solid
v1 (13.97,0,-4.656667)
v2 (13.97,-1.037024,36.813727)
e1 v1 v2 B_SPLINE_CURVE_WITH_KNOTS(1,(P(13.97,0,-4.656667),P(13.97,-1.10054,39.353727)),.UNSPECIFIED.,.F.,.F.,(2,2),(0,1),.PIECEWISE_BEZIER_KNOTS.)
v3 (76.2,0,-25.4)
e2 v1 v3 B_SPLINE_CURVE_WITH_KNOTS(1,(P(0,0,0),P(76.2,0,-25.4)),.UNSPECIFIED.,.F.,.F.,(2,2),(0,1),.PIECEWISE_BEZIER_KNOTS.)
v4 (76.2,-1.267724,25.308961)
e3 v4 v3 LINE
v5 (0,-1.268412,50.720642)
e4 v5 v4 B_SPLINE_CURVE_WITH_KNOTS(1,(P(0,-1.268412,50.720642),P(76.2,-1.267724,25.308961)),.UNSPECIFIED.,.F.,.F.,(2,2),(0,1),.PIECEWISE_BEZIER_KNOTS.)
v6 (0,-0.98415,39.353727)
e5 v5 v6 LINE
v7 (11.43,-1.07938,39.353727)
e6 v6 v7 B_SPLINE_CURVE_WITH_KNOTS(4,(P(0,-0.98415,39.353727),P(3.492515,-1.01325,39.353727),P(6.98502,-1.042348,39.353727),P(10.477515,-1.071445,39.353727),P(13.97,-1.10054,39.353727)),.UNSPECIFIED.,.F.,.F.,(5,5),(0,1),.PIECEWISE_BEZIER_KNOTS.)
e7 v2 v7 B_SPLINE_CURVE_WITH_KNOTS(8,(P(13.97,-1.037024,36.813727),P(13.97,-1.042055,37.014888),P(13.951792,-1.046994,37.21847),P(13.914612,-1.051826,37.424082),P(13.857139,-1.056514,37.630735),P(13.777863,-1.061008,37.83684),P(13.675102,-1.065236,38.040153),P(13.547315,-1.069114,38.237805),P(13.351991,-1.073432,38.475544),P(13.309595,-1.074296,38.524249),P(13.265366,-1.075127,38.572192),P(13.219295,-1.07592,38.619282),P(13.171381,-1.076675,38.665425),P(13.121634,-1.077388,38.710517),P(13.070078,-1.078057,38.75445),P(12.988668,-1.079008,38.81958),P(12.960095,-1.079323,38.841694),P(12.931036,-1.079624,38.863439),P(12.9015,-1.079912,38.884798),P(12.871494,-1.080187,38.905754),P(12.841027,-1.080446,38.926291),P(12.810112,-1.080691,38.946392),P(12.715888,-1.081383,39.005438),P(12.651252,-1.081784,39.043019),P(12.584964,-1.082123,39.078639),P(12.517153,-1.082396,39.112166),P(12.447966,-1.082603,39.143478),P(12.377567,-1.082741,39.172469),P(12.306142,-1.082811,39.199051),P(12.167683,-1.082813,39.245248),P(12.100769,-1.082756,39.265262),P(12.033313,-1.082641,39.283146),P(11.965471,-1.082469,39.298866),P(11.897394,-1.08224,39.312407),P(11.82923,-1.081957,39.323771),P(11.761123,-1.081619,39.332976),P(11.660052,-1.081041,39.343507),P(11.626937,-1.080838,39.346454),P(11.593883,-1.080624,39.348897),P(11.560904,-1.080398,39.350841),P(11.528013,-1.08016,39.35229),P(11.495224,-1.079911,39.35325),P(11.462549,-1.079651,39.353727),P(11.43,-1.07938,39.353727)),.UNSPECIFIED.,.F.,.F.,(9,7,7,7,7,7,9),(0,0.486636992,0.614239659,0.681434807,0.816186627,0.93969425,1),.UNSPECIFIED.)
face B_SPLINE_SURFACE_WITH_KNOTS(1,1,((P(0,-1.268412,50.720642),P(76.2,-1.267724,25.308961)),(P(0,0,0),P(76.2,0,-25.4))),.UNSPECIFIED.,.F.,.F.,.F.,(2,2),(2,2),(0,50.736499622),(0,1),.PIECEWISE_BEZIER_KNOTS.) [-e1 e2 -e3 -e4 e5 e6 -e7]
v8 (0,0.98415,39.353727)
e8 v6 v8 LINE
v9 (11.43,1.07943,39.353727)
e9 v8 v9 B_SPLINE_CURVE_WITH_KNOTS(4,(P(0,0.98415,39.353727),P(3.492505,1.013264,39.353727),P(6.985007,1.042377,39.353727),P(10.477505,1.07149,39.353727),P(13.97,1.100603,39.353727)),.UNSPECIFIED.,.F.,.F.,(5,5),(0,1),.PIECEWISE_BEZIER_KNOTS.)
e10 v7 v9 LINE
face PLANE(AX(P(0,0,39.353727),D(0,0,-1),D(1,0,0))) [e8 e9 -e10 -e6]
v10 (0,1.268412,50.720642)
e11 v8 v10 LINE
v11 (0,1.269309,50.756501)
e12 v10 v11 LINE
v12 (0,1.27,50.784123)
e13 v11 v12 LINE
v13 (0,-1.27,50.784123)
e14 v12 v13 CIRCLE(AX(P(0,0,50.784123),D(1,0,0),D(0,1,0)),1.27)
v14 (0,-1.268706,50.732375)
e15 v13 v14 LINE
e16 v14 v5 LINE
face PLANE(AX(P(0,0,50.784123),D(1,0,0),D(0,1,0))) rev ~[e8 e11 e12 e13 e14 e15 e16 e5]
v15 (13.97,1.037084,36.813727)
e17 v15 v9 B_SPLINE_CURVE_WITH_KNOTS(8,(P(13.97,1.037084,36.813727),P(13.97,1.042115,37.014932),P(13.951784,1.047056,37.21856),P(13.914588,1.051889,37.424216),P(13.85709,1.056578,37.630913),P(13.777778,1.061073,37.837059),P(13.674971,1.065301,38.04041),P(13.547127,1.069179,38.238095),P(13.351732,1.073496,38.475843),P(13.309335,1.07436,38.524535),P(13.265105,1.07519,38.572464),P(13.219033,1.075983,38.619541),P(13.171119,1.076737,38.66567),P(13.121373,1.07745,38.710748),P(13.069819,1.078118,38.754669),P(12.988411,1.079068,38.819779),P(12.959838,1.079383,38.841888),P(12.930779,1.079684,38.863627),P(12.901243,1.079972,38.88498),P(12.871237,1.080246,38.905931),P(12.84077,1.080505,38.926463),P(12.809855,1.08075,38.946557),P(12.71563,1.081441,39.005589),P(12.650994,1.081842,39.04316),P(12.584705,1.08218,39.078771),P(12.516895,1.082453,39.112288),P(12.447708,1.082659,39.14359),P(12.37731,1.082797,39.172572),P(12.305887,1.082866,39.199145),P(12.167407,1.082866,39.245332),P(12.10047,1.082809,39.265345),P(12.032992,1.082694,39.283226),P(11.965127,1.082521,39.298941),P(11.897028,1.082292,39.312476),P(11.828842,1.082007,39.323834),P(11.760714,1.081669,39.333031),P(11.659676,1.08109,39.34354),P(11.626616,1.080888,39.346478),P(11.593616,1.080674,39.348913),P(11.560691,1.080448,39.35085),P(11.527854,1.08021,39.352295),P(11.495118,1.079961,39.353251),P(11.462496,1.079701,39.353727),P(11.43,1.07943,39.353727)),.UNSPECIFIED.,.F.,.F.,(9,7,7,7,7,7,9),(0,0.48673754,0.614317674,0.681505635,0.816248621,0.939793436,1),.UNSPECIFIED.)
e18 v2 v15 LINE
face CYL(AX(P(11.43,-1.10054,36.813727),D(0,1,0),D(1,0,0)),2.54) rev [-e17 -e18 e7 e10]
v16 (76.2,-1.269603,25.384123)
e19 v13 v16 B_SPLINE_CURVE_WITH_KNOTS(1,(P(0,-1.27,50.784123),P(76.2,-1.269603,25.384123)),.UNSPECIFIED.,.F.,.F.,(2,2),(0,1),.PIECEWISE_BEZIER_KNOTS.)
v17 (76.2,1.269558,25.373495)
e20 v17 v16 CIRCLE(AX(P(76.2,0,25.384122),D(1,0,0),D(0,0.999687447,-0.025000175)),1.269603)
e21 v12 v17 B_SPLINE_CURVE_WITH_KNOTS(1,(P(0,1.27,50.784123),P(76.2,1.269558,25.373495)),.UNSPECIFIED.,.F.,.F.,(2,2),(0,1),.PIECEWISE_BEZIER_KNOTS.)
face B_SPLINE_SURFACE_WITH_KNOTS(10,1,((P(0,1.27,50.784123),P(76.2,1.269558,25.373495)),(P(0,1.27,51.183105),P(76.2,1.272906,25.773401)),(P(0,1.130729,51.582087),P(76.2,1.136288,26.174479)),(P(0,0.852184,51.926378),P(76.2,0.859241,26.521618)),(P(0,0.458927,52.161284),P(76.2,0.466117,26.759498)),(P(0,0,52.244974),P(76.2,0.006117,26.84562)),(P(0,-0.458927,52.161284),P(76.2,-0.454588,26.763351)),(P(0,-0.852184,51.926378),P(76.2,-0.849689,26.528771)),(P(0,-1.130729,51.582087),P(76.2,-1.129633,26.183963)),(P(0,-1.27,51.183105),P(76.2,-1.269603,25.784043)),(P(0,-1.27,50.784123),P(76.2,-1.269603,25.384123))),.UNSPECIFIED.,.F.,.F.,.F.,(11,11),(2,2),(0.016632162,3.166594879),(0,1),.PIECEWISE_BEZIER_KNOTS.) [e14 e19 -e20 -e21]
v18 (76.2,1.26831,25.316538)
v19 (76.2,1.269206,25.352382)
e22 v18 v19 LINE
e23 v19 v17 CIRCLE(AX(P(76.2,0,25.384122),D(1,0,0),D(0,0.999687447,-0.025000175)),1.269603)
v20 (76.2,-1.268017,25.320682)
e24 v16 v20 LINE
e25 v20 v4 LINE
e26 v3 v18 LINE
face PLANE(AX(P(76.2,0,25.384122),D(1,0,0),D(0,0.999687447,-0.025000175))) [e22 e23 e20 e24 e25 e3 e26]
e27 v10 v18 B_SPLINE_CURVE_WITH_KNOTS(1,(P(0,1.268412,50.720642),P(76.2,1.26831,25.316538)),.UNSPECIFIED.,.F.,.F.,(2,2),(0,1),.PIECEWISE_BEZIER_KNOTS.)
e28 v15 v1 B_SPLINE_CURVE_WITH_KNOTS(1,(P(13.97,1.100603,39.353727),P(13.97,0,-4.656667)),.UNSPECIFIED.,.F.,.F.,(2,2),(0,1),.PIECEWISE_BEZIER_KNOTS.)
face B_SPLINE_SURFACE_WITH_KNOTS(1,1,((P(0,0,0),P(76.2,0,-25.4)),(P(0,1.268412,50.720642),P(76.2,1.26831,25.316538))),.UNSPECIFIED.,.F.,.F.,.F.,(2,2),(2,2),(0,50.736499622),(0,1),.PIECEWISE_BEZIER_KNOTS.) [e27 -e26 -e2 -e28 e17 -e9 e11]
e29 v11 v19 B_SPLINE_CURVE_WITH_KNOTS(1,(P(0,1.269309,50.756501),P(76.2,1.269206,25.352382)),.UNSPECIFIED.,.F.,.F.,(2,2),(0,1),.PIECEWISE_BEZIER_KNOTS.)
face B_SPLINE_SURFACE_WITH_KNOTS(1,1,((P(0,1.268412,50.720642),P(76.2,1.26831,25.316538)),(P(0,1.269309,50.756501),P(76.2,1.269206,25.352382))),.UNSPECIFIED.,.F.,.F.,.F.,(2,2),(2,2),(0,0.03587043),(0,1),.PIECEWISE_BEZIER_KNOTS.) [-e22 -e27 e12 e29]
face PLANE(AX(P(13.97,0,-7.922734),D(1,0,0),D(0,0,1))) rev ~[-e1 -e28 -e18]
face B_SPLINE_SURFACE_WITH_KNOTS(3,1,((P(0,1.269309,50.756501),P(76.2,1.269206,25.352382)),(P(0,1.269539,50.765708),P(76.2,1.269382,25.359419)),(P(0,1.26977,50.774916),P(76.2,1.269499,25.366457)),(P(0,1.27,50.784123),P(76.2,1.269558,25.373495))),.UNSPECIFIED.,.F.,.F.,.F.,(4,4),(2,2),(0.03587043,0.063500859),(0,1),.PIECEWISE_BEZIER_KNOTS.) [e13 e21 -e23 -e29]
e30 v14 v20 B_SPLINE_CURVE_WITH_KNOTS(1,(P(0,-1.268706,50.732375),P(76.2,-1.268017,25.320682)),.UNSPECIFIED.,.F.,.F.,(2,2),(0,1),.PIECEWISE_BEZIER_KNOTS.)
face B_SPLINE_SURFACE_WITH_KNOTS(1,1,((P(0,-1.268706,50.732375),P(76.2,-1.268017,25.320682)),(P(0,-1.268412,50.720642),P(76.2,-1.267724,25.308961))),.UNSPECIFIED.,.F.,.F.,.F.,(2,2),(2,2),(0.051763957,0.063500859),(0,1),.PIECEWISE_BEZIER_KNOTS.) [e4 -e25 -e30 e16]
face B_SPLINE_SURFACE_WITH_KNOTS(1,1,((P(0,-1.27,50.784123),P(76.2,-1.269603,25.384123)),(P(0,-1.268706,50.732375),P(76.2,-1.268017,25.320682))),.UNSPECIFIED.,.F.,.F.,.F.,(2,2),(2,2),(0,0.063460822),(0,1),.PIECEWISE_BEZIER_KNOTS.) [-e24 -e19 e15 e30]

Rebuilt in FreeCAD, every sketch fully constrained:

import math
import FreeCAD as App
import Part
import Sketcher

V = App.Vector
Q = App.Units.Quantity


def edges_at(feature, points):
    """Names of the edges that pass closest to the given points."""
    edges = feature.Shape.Edges
    near = lambda p: min(range(len(edges)), key=lambda i: edges[i].distToShape(Part.Vertex(*p))[0])
    return sorted({f"Edge{near(p) + 1}" for p in points})


def add_polygon(sketch, points):
    """Adds a closed chain of lines whose ends are joined by coincident constraints."""
    first, n = sketch.GeometryCount, len(points)
    for a, b in zip(points, points[1:] + points[:1]):
        sketch.addGeometry(Part.LineSegment(App.Vector(*a, 0), App.Vector(*b, 0)), False)
    for i in range(n):
        sketch.addConstraint(Sketcher.Constraint("Coincident", first + i, 2, first + (i + 1) % n, 1))

doc = App.newDocument("Part")
body = doc.addObject("PartDesign::Body", "Body")

# Sketch on YZ plane
sketch1 = body.newObject("Sketcher::SketchObject", "Sketch")
sketch1.AttachmentSupport = (doc.getObject("YZ_Plane"), [""])
sketch1.MapMode = "FlatFace"
sketch1.addGeometry(Part.LineSegment(V(-1.27, 50.72, 0), V(0, 0, 0)), False)
sketch1.addGeometry(Part.LineSegment(V(0, 0, 0), V(1.27, 50.72, 0)), False)
sketch1.addGeometry(Part.LineSegment(V(1.27, 50.72, 0), V(1.27, 50.78, 0)), False)
sketch1.addGeometry(Part.ArcOfCircle(Part.Circle(V(0, 50.78, 0), V(0, 0, 1), 1.27), math.radians(0), math.radians(180)), False)
sketch1.addGeometry(Part.LineSegment(V(-1.27, 50.78, 0), V(-1.27, 50.72, 0)), False)
sketch1.addConstraint(Sketcher.Constraint("Coincident", 0, 2, 1, 1))
sketch1.addConstraint(Sketcher.Constraint("Coincident", 1, 2, 2, 1))
sketch1.addConstraint(Sketcher.Constraint("Coincident", 2, 2, 3, 1))
sketch1.addConstraint(Sketcher.Constraint("Coincident", 3, 2, 4, 1))
sketch1.addConstraint(Sketcher.Constraint("Coincident", 4, 2, 0, 1))
sketch1.addConstraint(Sketcher.Constraint("Coincident", 0, 2, -1, 1))
sketch1.addConstraint(Sketcher.Constraint("Symmetric", 2, 2, 3, 2, -2))
sketch1.addConstraint(Sketcher.Constraint("Symmetric", 1, 2, 4, 2, -2))
sketch1.addConstraint(Sketcher.Constraint("Horizontal", 3, 3, 2, 2))
sketch1.addConstraint(Sketcher.Constraint("Radius", 3, Q("0.05 in")))
sketch1.addConstraint(Sketcher.Constraint("Distance", 0, Q("1.9975 in")))
sketch1.addConstraint(Sketcher.Constraint("Distance", 2, Q("0.0025 in")))
sketch1.addConstraint(Sketcher.Constraint("DistanceY", -1, 1, 1, 2, Q("50.720642 mm")))

# Sketch on YZ plane
sketch2 = body.newObject("Sketcher::SketchObject", "Sketch001")
sketch2.AttachmentSupport = (doc.getObject("YZ_Plane"), [""])
sketch2.MapMode = "FlatFace"
sketch2.AttachmentOffset = App.Placement(V(0, 0, 3 * 25.4), App.Rotation())
sketch2.addGeometry(Part.LineSegment(V(-1.27, 25.32, 0), V(0, -25.4, 0)), False)
sketch2.addGeometry(Part.LineSegment(V(0, -25.4, 0), V(1.27, 25.35, 0)), False)
sketch2.addGeometry(Part.ArcOfCircle(Part.Circle(V(0, 25.38, 0), V(0, 0, 1), 1.27), math.radians(-1), math.radians(180)), False)
sketch2.addGeometry(Part.LineSegment(V(-1.27, 25.38, 0), V(-1.27, 25.32, 0)), False)
sketch2.addConstraint(Sketcher.Constraint("Coincident", 0, 2, 1, 1))
sketch2.addConstraint(Sketcher.Constraint("Tangent", 1, 2, 2, 1))
sketch2.addConstraint(Sketcher.Constraint("Coincident", 2, 2, 3, 1))
sketch2.addConstraint(Sketcher.Constraint("Coincident", 3, 2, 0, 1))
sketch2.addConstraint(Sketcher.Constraint("PointOnObject", 2, 3, -2))
sketch2.addConstraint(Sketcher.Constraint("PointOnObject", 0, 2, -2))
sketch2.addConstraint(Sketcher.Constraint("Parallel", 0, 3))
sketch2.addConstraint(Sketcher.Constraint("DistanceY", 0, 2, -1, 1, Q("1 in")))
sketch2.addConstraint(Sketcher.Constraint("Radius", 2, Q("1.269603 mm")))
sketch2.addConstraint(Sketcher.Constraint("DistanceY", 3, 2, 1, 2, Q("0.0317 mm")))
sketch2.addConstraint(Sketcher.Constraint("Distance", 0, Q("50.73653 mm")))
sketch2.addConstraint(Sketcher.Constraint("Distance", 3, Q("0.063461 mm")))

additiveloft = body.newObject("PartDesign::AdditiveLoft", "AdditiveLoft")
additiveloft.Profile = sketch1
additiveloft.Sections = [sketch2]

# Sketch on XZ plane
sketch3 = body.newObject("Sketcher::SketchObject", "Sketch002")
sketch3.AttachmentSupport = (doc.getObject("XZ_Plane"), [""])
sketch3.MapMode = "FlatFace"
add_polygon(sketch3, [(0, 39), (0, -8), (14, -8), (14, 39)])  # lines 0-3
sketch3.addConstraint(Sketcher.Constraint("Vertical", 0))
sketch3.addConstraint(Sketcher.Constraint("Horizontal", 1))
sketch3.addConstraint(Sketcher.Constraint("Vertical", 2))
sketch3.addConstraint(Sketcher.Constraint("Horizontal", 3))
sketch3.addConstraint(Sketcher.Constraint("PointOnObject", 0, 2, -2))
sketch3.addConstraint(Sketcher.Constraint("DistanceX", 1, 1, 1, 2, Q("0.55 in")))
sketch3.addConstraint(Sketcher.Constraint("DistanceY", 0, 2, 0, 1, Q("47.276461 mm")))
sketch3.addConstraint(Sketcher.Constraint("DistanceY", 0, 2, -1, 1, Q("7.922734 mm")))
pocket1 = body.newObject("PartDesign::Pocket", "Pocket")
pocket1.Profile = sketch3
pocket1.Length = Q("1 in")
pocket1.Midplane = True
doc.recompute()

fillet = body.newObject("PartDesign::Fillet", "Fillet")
fillet.Base = (pocket1, edges_at(pocket1, [(13.97, 0, 39.354)]))
fillet.Radius = Q("0.1 in")

doc.recompute()
